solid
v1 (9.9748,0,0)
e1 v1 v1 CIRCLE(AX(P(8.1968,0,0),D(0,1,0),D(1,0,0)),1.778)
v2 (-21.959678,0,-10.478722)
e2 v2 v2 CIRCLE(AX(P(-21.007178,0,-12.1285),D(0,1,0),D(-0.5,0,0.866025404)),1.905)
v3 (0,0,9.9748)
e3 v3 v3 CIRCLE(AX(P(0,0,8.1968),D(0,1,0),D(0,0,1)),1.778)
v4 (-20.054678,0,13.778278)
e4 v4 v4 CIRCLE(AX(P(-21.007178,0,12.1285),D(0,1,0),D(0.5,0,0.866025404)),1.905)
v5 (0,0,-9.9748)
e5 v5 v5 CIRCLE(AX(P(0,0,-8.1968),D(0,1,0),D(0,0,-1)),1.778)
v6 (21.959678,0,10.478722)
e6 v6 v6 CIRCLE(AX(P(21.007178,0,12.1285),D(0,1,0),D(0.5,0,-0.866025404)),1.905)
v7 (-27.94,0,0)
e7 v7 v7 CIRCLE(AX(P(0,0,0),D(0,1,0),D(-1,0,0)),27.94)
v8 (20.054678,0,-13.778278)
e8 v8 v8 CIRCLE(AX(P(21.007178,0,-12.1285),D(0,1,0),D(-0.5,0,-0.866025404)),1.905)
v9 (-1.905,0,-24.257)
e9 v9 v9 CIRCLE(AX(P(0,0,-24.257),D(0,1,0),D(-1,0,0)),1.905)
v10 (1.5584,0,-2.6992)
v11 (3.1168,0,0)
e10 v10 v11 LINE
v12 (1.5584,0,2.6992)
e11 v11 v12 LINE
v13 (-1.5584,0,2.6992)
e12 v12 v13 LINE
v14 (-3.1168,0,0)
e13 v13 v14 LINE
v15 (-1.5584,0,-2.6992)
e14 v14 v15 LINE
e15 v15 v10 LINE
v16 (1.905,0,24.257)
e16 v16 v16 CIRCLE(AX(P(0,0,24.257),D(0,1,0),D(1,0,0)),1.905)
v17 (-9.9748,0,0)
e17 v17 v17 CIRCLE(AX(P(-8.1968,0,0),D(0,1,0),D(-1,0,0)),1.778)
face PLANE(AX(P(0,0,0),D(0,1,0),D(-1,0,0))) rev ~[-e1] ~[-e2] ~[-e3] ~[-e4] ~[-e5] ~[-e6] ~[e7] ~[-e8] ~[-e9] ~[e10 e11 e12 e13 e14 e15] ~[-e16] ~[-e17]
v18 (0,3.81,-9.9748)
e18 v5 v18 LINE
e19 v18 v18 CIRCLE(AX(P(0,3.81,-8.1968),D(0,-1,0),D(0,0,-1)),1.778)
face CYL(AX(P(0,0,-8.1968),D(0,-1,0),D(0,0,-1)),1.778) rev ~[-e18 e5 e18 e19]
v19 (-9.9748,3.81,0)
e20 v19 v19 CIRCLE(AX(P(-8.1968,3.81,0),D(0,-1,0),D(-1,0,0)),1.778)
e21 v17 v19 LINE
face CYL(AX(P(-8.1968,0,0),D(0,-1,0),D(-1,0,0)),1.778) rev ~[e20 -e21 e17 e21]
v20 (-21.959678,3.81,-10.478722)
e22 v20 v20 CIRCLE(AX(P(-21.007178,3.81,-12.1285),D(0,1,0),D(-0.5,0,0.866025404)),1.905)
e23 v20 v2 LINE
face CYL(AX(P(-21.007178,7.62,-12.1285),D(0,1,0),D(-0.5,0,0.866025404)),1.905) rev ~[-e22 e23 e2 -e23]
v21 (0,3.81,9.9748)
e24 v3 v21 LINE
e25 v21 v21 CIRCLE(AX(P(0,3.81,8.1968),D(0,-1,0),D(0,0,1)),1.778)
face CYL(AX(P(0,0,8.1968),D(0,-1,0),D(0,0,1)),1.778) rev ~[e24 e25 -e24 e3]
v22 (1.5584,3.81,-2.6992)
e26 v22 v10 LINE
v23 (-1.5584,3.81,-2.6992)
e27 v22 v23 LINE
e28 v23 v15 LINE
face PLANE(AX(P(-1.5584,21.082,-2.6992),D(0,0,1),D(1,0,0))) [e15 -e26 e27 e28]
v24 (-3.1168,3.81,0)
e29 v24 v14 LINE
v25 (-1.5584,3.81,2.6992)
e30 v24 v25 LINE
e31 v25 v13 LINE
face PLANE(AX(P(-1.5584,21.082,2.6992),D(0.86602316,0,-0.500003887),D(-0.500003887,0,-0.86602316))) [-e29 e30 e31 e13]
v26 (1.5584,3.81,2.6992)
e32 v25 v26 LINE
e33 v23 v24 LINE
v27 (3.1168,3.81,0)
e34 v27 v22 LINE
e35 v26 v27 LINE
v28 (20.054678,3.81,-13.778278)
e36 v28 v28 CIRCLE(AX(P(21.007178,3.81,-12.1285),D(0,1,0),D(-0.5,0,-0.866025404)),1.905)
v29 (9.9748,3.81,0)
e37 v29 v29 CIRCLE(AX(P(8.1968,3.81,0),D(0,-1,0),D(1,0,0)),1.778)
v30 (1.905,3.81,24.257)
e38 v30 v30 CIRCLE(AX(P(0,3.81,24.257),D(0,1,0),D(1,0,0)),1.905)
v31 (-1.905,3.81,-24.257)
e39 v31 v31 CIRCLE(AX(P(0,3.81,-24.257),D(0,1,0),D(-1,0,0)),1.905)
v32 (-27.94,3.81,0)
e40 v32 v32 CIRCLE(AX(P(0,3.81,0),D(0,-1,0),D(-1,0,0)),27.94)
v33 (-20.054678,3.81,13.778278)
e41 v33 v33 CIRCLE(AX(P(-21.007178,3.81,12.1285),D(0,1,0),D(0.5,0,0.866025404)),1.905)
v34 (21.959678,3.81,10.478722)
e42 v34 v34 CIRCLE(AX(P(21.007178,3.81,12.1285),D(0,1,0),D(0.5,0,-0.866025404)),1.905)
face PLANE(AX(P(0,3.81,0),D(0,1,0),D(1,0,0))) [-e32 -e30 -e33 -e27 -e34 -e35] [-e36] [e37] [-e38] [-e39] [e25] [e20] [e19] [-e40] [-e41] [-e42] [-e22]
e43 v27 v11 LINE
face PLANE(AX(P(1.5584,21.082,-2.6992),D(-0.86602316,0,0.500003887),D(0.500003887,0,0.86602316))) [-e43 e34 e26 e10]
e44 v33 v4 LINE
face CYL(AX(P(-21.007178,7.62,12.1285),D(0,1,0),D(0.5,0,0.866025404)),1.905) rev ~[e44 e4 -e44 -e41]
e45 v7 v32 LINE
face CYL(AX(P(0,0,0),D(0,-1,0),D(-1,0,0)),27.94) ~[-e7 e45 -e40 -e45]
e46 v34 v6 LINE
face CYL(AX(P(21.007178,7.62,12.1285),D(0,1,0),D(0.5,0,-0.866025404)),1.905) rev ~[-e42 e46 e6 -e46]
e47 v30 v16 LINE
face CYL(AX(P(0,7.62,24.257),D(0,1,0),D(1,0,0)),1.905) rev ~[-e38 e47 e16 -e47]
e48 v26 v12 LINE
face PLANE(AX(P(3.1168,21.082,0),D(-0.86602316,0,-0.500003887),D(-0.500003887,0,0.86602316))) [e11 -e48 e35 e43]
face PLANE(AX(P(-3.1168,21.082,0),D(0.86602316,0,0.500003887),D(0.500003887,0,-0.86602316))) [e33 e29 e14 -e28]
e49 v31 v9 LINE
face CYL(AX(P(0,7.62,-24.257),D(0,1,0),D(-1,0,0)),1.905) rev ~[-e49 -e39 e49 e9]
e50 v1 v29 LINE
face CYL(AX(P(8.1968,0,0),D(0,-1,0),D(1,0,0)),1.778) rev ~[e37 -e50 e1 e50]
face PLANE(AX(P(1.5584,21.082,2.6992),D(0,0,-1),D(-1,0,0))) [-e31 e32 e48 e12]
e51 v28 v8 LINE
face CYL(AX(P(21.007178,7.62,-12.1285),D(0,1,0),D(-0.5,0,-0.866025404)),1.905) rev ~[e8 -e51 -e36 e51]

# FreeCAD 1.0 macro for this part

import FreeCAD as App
import Part
import Sketcher
from FreeCAD import Vector
Q = App.Units.Quantity


def add_polygon(sketch, points):
    """Adds a closed chain of lines whose ends are joined by coincident constraints."""
    first, n = sketch.GeometryCount, len(points)
    for a, b in zip(points, points[1:] + points[:1]):
        sketch.addGeometry(Part.LineSegment(App.Vector(*a, 0), App.Vector(*b, 0)), False)
    for i in range(n):
        sketch.addConstraint(Sketcher.Constraint("Coincident", first + i, 2, first + (i + 1) % n, 1))

doc = App.newDocument("Part")
body = doc.addObject("PartDesign::Body", "Body")

sketch1 = body.newObject("Sketcher::SketchObject", "Sketch")
sketch1.AttachmentSupport = (doc.getObject("XZ_Plane"), [""])
sketch1.MapMode = "FlatFace"
sketch1.addGeometry(Part.Circle(Vector(0, 0, 0), Vector(0, 0, 1), 28), False)
sketch1.addConstraint([
    Sketcher.Constraint("Coincident", 0, 3, -1, 1),
    Sketcher.Constraint("Diameter", 0, Q("2.2 in")),
])
pad1 = body.newObject("PartDesign::Pad", "Pad")
pad1.Profile = sketch1
pad1.Length = Q("0.3 in")
pad1.Reversed = True

sketch2 = body.newObject("Sketcher::SketchObject", "Sketch001")
sketch2.AttachmentSupport = (doc.getObject("XZ_Plane"), [""])
sketch2.MapMode = "FlatFace"
sketch2.AttachmentOffset = App.Placement(Vector(0, 0, -0.83 * 25.4), App.Rotation())
add_polygon(sketch2, [(-1.6, -2.7), (-3.1, 0), (-1.6, 2.7), (1.6, 2.7), (3.1, 0), (1.6, -2.7)])
sketch2.addConstraint([
    Sketcher.Constraint("Horizontal", 2),
    Sketcher.Constraint("Horizontal", 5),
    Sketcher.Constraint("Symmetric", 0, 2, 3, 2, -1, 1),
    Sketcher.Constraint("Symmetric", 1, 2, 4, 2, -1, 1),
    Sketcher.Constraint("PointOnObject", 0, 2, -1),
    Sketcher.Constraint("Parallel", 0, 3),
    Sketcher.Constraint("Vertical", 2, 2, 4, 2),
    Sketcher.Constraint("Angle", 0, Q("120.0003 deg")),
    Sketcher.Constraint("DistanceX", 2, 1, 2, 2, Q("0.1227 in")),
    Sketcher.Constraint("Distance", 0, Q("0.1227 in")),
])
pocket1 = body.newObject("PartDesign::Pocket", "Pocket")
pocket1.Profile = sketch2
pocket1.Length = Q("1 in")
pocket1.Reversed = True

sketch3 = body.newObject("Sketcher::SketchObject", "Sketch002")
sketch3.AttachmentSupport = (doc.getObject("XZ_Plane"), [""])
sketch3.MapMode = "FlatFace"
sketch3.AttachmentOffset = App.Placement(Vector(0, 0, -0.3 * 25.4), App.Rotation())
sketch3.addGeometry(Part.Circle(Vector(0, 24.3, 0), Vector(0, 0, 1), 1.9), False)
sketch3.addConstraint([
    Sketcher.Constraint("PointOnObject", 0, 3, -2),
    Sketcher.Constraint("Diameter", 0, Q("0.15 in")),
    Sketcher.Constraint("DistanceY", -1, 1, 0, 3, Q("0.955 in")),
])
pocket2 = body.newObject("PartDesign::Pocket", "Pocket001")
pocket2.Profile = sketch3
pocket2.Length = Q("1 in")
pocket2.Reversed = True
doc.recompute()

polarpattern = body.newObject("PartDesign::PolarPattern", "PolarPattern")
polarpattern.Originals = [pocket2]
polarpattern.Axis = (doc.getObject("Y_Axis"), [""])
polarpattern.Angle = 360
polarpattern.Occurrences = 6
body.Tip = polarpattern

sketch4 = body.newObject("Sketcher::SketchObject", "Sketch003")
sketch4.AttachmentSupport = (doc.getObject("XZ_Plane"), [""])
sketch4.MapMode = "FlatFace"
sketch4.addGeometry(Part.Circle(Vector(8.2, 0, 0), Vector(0, 0, 1), 1.8), False)
sketch4.addConstraint([
    Sketcher.Constraint("PointOnObject", 0, 3, -1),
    Sketcher.Constraint("Diameter", 0, Q("0.14 in")),
    Sketcher.Constraint("DistanceX", -1, 1, 0, 3, Q("0.3227 in")),
])
pocket3 = body.newObject("PartDesign::Pocket", "Pocket002")
pocket3.Profile = sketch4
pocket3.Length = Q("1 in")
doc.recompute()

polarpattern2 = body.newObject("PartDesign::PolarPattern", "PolarPattern001")
polarpattern2.Originals = [pocket3]
polarpattern2.Axis = (doc.getObject("Y_Axis"), [""])
polarpattern2.Angle = 360
polarpattern2.Occurrences = 4
body.Tip = polarpattern2

sketch5 = body.newObject("Sketcher::SketchObject", "Sketch004")
sketch5.AttachmentSupport = (doc.getObject("XZ_Plane"), [""])
sketch5.MapMode = "FlatFace"
sketch5.AttachmentOffset = App.Placement(Vector(0, 0, -0.3 * 25.4), App.Rotation())
sketch5.addGeometry(Part.Circle(Vector(0, 0, 0), Vector(0, 0, 1), 28), False)
sketch5.addConstraint([
    Sketcher.Constraint("Coincident", 0, 3, -1, 1),
    Sketcher.Constraint("Diameter", 0, Q("2.2 in")),
])
pocket4 = body.newObject("PartDesign::Pocket", "Pocket003")
pocket4.Profile = sketch5
pocket4.Length = Q("0.15 in")
pocket4.Reversed = True

doc.recompute()
